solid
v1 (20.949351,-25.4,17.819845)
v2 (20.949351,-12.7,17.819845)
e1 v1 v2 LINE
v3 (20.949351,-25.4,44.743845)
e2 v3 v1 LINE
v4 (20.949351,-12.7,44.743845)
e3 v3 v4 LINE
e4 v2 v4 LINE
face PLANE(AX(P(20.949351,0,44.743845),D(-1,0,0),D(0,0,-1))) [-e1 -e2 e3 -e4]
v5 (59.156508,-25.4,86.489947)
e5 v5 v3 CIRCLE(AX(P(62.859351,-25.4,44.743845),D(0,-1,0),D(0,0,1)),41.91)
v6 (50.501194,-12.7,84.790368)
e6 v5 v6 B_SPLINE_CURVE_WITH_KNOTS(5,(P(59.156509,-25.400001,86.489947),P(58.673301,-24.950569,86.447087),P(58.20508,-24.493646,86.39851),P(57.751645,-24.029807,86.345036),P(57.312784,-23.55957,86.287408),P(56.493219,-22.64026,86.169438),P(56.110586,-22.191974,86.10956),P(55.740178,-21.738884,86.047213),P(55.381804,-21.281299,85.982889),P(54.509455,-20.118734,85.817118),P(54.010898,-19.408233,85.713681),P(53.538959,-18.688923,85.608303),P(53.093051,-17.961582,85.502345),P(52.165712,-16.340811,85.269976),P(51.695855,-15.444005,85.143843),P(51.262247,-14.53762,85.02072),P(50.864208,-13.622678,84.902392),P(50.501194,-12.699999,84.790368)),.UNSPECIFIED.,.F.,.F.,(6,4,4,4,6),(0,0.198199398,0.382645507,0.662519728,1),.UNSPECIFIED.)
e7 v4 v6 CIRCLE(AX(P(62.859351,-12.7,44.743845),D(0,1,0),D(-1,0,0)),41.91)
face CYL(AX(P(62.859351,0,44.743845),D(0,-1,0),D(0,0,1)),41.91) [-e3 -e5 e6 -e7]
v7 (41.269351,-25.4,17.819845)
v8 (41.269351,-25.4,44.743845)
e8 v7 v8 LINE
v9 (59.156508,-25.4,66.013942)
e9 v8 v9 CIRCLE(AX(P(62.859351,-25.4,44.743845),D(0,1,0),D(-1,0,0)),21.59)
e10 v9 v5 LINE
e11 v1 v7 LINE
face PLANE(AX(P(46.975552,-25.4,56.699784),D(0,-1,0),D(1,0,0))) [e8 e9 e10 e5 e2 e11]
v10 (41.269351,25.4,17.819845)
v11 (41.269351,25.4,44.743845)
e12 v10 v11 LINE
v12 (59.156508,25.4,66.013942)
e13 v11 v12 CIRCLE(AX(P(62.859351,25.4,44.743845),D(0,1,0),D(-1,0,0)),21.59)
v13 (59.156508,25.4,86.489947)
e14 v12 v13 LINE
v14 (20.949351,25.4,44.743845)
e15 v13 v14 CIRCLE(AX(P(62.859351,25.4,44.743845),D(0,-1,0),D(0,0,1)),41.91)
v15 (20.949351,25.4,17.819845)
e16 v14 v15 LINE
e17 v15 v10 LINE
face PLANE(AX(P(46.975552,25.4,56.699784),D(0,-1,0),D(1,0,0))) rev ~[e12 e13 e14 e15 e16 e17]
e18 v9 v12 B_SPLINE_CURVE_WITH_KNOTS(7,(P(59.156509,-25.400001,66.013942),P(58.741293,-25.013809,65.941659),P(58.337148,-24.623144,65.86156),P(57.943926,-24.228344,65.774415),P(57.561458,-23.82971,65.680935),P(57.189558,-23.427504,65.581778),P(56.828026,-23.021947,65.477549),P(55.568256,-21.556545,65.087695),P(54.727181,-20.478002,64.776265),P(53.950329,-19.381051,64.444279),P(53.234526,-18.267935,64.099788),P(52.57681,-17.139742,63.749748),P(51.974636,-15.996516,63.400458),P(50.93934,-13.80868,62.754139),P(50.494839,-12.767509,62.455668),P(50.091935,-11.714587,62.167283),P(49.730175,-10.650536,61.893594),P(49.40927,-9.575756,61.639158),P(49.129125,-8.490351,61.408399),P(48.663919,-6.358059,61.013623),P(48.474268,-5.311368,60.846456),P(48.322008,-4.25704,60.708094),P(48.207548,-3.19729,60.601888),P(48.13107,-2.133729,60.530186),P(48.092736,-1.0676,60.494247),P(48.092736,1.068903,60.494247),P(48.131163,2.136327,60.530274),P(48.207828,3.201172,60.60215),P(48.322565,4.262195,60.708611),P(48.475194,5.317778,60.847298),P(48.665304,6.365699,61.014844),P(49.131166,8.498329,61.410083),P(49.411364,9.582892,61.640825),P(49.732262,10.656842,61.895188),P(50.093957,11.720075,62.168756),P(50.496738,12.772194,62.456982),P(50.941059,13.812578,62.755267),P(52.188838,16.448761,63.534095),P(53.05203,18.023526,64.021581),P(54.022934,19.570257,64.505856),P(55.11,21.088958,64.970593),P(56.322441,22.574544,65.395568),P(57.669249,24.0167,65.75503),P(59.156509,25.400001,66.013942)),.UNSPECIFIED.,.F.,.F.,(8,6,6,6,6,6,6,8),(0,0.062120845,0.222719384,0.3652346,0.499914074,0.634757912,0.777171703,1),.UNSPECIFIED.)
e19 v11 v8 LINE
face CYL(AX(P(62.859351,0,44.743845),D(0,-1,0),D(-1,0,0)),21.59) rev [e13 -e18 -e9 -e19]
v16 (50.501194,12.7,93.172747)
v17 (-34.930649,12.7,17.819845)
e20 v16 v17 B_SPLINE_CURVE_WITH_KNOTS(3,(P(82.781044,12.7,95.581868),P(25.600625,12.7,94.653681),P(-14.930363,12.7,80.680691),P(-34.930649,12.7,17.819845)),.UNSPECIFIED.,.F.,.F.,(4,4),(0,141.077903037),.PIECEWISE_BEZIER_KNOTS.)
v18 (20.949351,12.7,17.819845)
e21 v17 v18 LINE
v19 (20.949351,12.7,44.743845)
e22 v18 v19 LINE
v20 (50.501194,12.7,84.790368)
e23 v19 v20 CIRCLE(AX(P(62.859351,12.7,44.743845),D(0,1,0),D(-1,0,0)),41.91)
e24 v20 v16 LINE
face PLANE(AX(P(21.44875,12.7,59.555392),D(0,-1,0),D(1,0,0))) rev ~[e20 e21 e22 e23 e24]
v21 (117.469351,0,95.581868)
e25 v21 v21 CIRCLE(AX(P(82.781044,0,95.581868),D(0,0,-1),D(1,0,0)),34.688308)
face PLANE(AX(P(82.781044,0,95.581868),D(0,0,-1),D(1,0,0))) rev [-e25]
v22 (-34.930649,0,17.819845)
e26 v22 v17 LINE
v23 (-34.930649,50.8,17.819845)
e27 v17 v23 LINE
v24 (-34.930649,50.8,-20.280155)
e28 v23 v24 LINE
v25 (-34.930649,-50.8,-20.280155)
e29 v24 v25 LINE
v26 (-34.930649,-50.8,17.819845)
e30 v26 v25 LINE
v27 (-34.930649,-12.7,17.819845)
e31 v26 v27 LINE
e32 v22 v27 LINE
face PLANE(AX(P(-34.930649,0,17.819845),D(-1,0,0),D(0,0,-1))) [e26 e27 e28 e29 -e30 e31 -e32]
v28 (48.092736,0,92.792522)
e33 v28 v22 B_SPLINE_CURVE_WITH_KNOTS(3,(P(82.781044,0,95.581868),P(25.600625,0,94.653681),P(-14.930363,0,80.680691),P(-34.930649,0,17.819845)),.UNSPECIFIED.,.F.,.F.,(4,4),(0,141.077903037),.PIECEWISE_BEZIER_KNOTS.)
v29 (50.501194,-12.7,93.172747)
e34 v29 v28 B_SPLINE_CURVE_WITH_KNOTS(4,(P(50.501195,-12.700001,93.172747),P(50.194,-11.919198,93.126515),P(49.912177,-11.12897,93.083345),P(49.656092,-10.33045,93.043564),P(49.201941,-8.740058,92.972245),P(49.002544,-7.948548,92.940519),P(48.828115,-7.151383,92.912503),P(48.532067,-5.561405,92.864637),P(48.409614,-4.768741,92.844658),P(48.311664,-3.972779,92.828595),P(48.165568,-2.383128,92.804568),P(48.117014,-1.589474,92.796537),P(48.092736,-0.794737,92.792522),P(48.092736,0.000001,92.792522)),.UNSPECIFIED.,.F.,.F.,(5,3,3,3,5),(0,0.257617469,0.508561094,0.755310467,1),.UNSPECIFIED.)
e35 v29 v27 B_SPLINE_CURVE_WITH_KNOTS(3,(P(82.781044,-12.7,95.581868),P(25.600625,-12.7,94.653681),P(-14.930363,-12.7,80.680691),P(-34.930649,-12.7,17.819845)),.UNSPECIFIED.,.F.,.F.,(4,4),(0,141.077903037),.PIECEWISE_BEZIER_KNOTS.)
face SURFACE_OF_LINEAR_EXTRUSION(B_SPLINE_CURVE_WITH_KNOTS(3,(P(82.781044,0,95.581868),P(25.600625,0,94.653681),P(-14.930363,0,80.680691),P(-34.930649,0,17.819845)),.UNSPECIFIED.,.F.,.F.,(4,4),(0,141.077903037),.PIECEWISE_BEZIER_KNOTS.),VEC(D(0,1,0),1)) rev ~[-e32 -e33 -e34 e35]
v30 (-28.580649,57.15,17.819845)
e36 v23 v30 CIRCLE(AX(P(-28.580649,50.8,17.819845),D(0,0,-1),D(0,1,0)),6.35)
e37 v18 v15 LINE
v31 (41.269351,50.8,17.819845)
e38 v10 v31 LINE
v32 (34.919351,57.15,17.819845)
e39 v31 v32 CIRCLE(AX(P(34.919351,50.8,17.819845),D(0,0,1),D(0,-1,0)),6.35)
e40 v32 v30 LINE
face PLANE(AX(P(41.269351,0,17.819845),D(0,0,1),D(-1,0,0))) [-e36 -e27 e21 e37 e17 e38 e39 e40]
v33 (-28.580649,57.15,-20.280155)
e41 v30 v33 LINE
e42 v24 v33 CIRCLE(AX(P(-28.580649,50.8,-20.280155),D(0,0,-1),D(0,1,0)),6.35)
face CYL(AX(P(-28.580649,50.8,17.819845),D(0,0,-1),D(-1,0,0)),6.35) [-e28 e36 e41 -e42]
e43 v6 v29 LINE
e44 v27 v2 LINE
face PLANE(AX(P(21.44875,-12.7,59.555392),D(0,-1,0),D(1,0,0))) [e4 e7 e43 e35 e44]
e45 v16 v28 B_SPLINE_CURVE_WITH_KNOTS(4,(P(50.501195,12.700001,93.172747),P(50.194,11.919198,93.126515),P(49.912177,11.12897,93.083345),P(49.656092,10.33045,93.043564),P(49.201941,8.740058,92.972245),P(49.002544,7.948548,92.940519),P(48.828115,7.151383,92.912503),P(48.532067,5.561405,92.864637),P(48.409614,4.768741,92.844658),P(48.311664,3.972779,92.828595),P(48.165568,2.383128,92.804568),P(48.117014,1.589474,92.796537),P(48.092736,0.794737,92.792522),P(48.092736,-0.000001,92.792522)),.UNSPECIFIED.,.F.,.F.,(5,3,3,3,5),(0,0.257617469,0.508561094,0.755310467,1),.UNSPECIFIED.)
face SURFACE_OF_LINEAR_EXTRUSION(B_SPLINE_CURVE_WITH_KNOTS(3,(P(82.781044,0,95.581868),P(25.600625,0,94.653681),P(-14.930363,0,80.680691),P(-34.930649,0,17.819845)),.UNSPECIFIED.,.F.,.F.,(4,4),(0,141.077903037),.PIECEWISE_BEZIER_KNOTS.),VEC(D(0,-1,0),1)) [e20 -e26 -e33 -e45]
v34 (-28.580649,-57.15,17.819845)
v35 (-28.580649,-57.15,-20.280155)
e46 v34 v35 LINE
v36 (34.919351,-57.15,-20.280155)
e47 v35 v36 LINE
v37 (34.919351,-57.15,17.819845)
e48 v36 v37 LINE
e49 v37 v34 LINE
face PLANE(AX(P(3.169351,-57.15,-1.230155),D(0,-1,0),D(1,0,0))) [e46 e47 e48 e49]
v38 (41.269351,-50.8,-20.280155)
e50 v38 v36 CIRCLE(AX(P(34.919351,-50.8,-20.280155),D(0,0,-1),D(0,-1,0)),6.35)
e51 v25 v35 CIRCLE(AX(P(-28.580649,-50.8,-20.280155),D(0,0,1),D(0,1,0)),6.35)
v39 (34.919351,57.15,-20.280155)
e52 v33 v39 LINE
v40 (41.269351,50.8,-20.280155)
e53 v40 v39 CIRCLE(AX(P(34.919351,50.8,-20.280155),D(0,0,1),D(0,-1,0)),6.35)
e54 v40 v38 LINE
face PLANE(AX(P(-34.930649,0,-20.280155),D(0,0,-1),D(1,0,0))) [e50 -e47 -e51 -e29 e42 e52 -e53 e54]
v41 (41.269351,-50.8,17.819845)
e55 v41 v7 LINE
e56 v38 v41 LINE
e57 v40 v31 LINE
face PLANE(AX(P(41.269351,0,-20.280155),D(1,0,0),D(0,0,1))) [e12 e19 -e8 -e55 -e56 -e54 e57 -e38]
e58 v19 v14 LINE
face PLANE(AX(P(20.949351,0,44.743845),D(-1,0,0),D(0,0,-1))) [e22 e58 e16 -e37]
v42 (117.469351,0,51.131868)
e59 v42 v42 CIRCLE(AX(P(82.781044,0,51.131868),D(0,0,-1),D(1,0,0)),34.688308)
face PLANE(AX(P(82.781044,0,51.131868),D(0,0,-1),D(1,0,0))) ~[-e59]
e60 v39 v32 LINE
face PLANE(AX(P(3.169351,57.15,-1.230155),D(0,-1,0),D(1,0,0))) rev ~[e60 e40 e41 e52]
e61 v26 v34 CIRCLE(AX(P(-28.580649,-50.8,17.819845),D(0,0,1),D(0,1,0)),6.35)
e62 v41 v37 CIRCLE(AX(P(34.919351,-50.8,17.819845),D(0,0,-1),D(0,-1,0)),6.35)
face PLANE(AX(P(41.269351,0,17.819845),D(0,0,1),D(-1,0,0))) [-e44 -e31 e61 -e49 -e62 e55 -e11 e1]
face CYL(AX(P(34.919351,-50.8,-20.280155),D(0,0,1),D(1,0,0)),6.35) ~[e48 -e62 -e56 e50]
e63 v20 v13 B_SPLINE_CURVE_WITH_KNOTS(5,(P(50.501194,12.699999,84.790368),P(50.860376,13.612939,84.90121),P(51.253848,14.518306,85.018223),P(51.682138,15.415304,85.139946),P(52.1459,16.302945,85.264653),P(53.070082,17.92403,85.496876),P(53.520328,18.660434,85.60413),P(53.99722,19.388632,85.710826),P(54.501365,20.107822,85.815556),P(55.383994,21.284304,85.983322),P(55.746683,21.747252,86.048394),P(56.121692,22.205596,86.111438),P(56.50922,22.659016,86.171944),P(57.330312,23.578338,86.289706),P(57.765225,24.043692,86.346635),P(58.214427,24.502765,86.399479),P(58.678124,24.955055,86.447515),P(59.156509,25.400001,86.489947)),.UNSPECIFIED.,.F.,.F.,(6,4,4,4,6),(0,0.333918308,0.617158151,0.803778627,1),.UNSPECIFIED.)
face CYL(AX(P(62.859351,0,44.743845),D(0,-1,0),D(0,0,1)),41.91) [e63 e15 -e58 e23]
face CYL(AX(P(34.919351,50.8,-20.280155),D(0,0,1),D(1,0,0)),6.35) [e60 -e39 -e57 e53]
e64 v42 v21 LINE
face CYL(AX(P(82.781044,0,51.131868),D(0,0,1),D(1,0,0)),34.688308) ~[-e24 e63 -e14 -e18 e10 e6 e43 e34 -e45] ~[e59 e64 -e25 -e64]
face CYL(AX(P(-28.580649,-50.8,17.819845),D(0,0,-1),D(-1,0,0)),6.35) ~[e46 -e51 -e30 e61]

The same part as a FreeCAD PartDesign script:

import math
import FreeCAD as App
import Part
import Sketcher

V = App.Vector
Q = App.Units.Quantity


def edges_at(feature, points):
    """Names of the edges that pass closest to the given points."""
    edges = feature.Shape.Edges
    near = lambda p: min(range(len(edges)), key=lambda i: edges[i].distToShape(Part.Vertex(*p))[0])
    return sorted({f"Edge{near(p) + 1}" for p in points})

doc = App.newDocument("Part")
body = doc.addObject("PartDesign::Body", "Body")

# Sketch on XZ plane
sketch1 = body.newObject("Sketcher::SketchObject", "Sketch")
sketch1.AttachmentSupport = (doc.getObject("XZ_Plane"), [""])
sketch1.MapMode = "FlatFace"
sketch1.addGeometry([
    Part.LineSegment(V(-35, 18, 0), V(-35, -20, 0)),
    Part.LineSegment(V(-35, -20, 0), V(41, -20, 0)),
    Part.LineSegment(V(41, -20, 0), V(41, 18, 0)),
    Part.LineSegment(V(41, 18, 0), V(-35, 18, 0)),
], False)
sketch1.addConstraint([
    Sketcher.Constraint("Coincident", 0, 2, 1, 1),
    Sketcher.Constraint("Coincident", 1, 2, 2, 1),
    Sketcher.Constraint("Coincident", 2, 2, 3, 1),
    Sketcher.Constraint("Coincident", 3, 2, 0, 1),
    Sketcher.Constraint("Vertical", 0),
    Sketcher.Constraint("Horizontal", 1),
    Sketcher.Constraint("Vertical", 2),
    Sketcher.Constraint("Horizontal", 3),
    Sketcher.Constraint("DistanceX", 1, 1, 1, 2, Q("3 in")),
    Sketcher.Constraint("DistanceY", 0, 2, 0, 1, Q("1.5 in")),
    Sketcher.Constraint("DistanceX", 0, 2, -1, 1, Q("34.930649 mm")),
    Sketcher.Constraint("DistanceY", 0, 2, -1, 1, Q("20.280155 mm")),
])
pad1 = body.newObject("PartDesign::Pad", "Pad")
pad1.Profile = sketch1
pad1.Length = Q("4.5 in")
pad1.Midplane = True

# Sketch on XZ plane
sketch2 = body.newObject("Sketcher::SketchObject", "Sketch001")
sketch2.AttachmentSupport = (doc.getObject("XZ_Plane"), [""])
sketch2.MapMode = "FlatFace"
sketch2.addGeometry([
    Part.LineSegment(V(21, 18, 0), V(41, 18, 0)),  # 0
    Part.LineSegment(V(41, 18, 0), V(41, 45, 0)),  # 1
    Part.ArcOfCircle(Part.Circle(V(63, 45, 0), V(0, 0, 1), 22), math.radians(90), math.radians(180)),  # 2
    Part.LineSegment(V(63, 66, 0), V(83, 66, 0)),  # 3
    Part.LineSegment(V(83, 66, 0), V(83, 87, 0)),  # 4
    Part.LineSegment(V(83, 87, 0), V(63, 87, 0)),  # 5
    Part.ArcOfCircle(Part.Circle(V(63, 45, 0), V(0, 0, 1), 42), math.radians(90), math.radians(180)),  # 6
    Part.LineSegment(V(21, 45, 0), V(21, 18, 0)),  # 7
], False)
sketch2.addConstraint([
    Sketcher.Constraint("Coincident", 0, 2, 1, 1),
    Sketcher.Constraint("Tangent", 1, 2, 2, 2),
    Sketcher.Constraint("Tangent", 2, 1, 3, 1),
    Sketcher.Constraint("Coincident", 3, 2, 4, 1),
    Sketcher.Constraint("Coincident", 4, 2, 5, 1),
    Sketcher.Constraint("Tangent", 5, 2, 6, 1),
    Sketcher.Constraint("Tangent", 6, 2, 7, 1),
    Sketcher.Constraint("Coincident", 7, 2, 0, 1),
    Sketcher.Constraint("Horizontal", 0),
    Sketcher.Constraint("Vertical", 1),
    Sketcher.Constraint("Horizontal", 3),
    Sketcher.Constraint("Vertical", 4),
    Sketcher.Constraint("Horizontal", 5),
    Sketcher.Constraint("Vertical", 7),
    Sketcher.Constraint("Coincident", 6, 3, 2, 3),
    Sketcher.Constraint("Radius", 2, Q("0.85 in")),
    Sketcher.Constraint("Radius", 6, Q("1.65 in")),
    Sketcher.Constraint("DistanceY", 1, 1, 1, 2, Q("1.06 in")),
    Sketcher.Constraint("DistanceX", 3, 1, 3, 2, Q("19.921692 mm")),
    Sketcher.Constraint("DistanceX", -1, 1, 2, 3, Q("62.859351 mm")),
    Sketcher.Constraint("DistanceY", -1, 1, 2, 3, Q("44.743845 mm")),
])
pad2 = body.newObject("PartDesign::Pad", "Pad001")
pad2.Profile = sketch2
pad2.Length = Q("2 in")
pad2.Midplane = True

# Sketch on XZ plane
sketch3 = body.newObject("Sketcher::SketchObject", "Sketch002")
sketch3.AttachmentSupport = (doc.getObject("XZ_Plane"), [""])
sketch3.MapMode = "FlatFace"
sketch3.addGeometry([
    Part.BSplineCurve([V(82.781044, 95.581868, 0), V(25.600625, 94.653681, 0), V(-14.930363, 80.680691, 0), V(-34.930649, 17.819845, 0)], [4, 4], [0, 141.077903037], False, 3, [1, 1, 1, 1], False),  # 0
    Part.LineSegment(V(-34.930649, 17.819845, 0), V(20.949351, 17.819845, 0)),  # 1
    Part.LineSegment(V(20.949351, 17.819845, 0), V(20.949351, 44.743845, 0)),  # 2
    Part.ArcOfCircle(Part.Circle(V(62.859351, 44.743845, 0), V(0, 0, 1), 41.91), math.radians(90), math.radians(180)),  # 3
    Part.LineSegment(V(62.859351, 86.653845, 0), V(82.781044, 86.653845, 0)),  # 4
    Part.LineSegment(V(82.781044, 86.653845, 0), V(82.781044, 95.581868, 0)),  # 5
], False)
sketch3.addConstraint([
    Sketcher.Constraint("Block", 0),
    Sketcher.Constraint("Coincident", 0, 2, 1, 1),
    Sketcher.Constraint("Coincident", 1, 2, 2, 1),
    Sketcher.Constraint("Tangent", 2, 2, 3, 2),
    Sketcher.Constraint("Tangent", 3, 1, 4, 1),
    Sketcher.Constraint("Coincident", 4, 2, 5, 1),
    Sketcher.Constraint("Coincident", 5, 2, 0, 1),
    Sketcher.Constraint("Horizontal", 1),
    Sketcher.Constraint("Vertical", 2),
    Sketcher.Constraint("Horizontal", 4),
    Sketcher.Constraint("Vertical", 5),
    Sketcher.Constraint("Radius", 3, Q("1.65 in")),
    Sketcher.Constraint("DistanceX", 1, 1, 1, 2, Q("2.2 in")),
    Sketcher.Constraint("DistanceY", 2, 1, 2, 2, Q("1.06 in")),
])
pad3 = body.newObject("PartDesign::Pad", "Pad002")
pad3.Profile = sketch3
pad3.Length = Q("1 in")
pad3.Midplane = True

# Sketch on XZ plane
sketch4 = body.newObject("Sketcher::SketchObject", "Sketch003")
sketch4.AttachmentSupport = (doc.getObject("XZ_Plane"), [""])
sketch4.MapMode = "FlatFace"
sketch4.addGeometry([
    Part.LineSegment(V(83, 96, 0), V(83, 51, 0)),
    Part.LineSegment(V(83, 51, 0), V(117, 51, 0)),
    Part.LineSegment(V(117, 51, 0), V(117, 96, 0)),
    Part.LineSegment(V(117, 96, 0), V(83, 96, 0)),
], False)
sketch4.addGeometry(Part.LineSegment(V(83, 96, 0), V(83, 51, 0)), True)  # axis
sketch4.addConstraint([
    Sketcher.Constraint("Coincident", 0, 2, 1, 1),
    Sketcher.Constraint("Coincident", 1, 2, 2, 1),
    Sketcher.Constraint("Coincident", 2, 2, 3, 1),
    Sketcher.Constraint("Coincident", 3, 2, 0, 1),
    Sketcher.Constraint("Vertical", 0),
    Sketcher.Constraint("Horizontal", 1),
    Sketcher.Constraint("Vertical", 2),
    Sketcher.Constraint("Horizontal", 3),
    Sketcher.Constraint("Vertical", 4),
    Sketcher.Constraint("Coincident", 4, 1, 3, 2),
    Sketcher.Constraint("Horizontal", 1, 2, 4, 2),
    Sketcher.Constraint("DistanceY", 0, 2, 0, 1, Q("1.75 in")),
    Sketcher.Constraint("DistanceX", 1, 1, 1, 2, Q("34.688308 mm")),
    Sketcher.Constraint("DistanceX", -1, 1, 1, 2, Q("117.469351 mm")),
    Sketcher.Constraint("DistanceY", -1, 1, 0, 2, Q("51.131868 mm")),
])
revolution = body.newObject("PartDesign::Revolution", "Revolution")
revolution.Profile = sketch4
revolution.ReferenceAxis = (sketch4, ["Axis0"])
revolution.Angle = 360
doc.recompute()

fillet = body.newObject("PartDesign::Fillet", "Fillet")
fillet.Base = (revolution, edges_at(revolution, [
    (41.269, 57.15, -1.23),
    (-34.931, 57.15, -1.23),
    (41.269, -57.15, -1.23),
    (-34.931, -57.15, -1.23),
]))
fillet.Radius = Q("0.25 in")

doc.recompute()
